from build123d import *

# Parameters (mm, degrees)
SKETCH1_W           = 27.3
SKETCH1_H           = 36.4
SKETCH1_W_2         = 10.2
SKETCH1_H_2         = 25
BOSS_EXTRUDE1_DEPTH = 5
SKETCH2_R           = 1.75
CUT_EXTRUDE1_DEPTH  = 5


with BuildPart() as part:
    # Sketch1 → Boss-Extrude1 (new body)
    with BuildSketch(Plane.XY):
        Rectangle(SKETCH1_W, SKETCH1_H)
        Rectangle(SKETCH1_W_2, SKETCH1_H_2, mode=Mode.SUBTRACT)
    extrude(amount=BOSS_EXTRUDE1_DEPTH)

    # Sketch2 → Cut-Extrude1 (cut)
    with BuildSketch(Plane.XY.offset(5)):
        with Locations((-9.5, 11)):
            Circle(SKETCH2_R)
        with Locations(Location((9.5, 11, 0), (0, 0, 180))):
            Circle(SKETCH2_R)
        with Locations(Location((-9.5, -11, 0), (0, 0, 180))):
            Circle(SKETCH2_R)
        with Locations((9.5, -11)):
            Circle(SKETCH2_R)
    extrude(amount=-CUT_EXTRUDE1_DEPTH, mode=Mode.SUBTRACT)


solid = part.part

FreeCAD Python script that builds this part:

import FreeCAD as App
import Part
import Sketcher
from FreeCAD import Vector

doc = App.newDocument("Part")
body = doc.addObject("PartDesign::Body", "Body")

# Sketch on XY plane
sketch1 = doc.addObject("Sketcher::SketchObject", "Sketch")
body.addObject(sketch1)
sketch1.AttachmentSupport = (doc.XY_Plane, [""])
sketch1.MapMode = "FlatFace"
sketch1.addGeometry([
    Part.LineSegment(Vector(-14, 18, 0), Vector(-14, -18, 0)),  # 0
    Part.LineSegment(Vector(-14, -18, 0), Vector(14, -18, 0)),  # 1
    Part.LineSegment(Vector(14, -18, 0), Vector(14, 18, 0)),  # 2
    Part.LineSegment(Vector(14, 18, 0), Vector(-14, 18, 0)),  # 3
    Part.LineSegment(Vector(5, -12, 0), Vector(-5, -12, 0)),  # 4
    Part.LineSegment(Vector(-5, -12, 0), Vector(-5, 12, 0)),  # 5
    Part.LineSegment(Vector(-5, 12, 0), Vector(5, 12, 0)),  # 6
    Part.LineSegment(Vector(5, 12, 0), Vector(5, -12, 0)),  # 7
], False)
sketch1.addConstraint([
    Sketcher.Constraint("Coincident", 0, 2, 1, 1),
    Sketcher.Constraint("Coincident", 1, 2, 2, 1),
    Sketcher.Constraint("Coincident", 2, 2, 3, 1),
    Sketcher.Constraint("Coincident", 3, 2, 0, 1),
    Sketcher.Constraint("Coincident", 4, 2, 5, 1),
    Sketcher.Constraint("Coincident", 5, 2, 6, 1),
    Sketcher.Constraint("Coincident", 6, 2, 7, 1),
    Sketcher.Constraint("Coincident", 7, 2, 4, 1),
    Sketcher.Constraint("Vertical", 0),
    Sketcher.Constraint("Horizontal", 1),
    Sketcher.Constraint("Vertical", 2),
    Sketcher.Constraint("Horizontal", 3),
    Sketcher.Constraint("Horizontal", 4),
    Sketcher.Constraint("Vertical", 5),
    Sketcher.Constraint("Horizontal", 6),
    Sketcher.Constraint("Vertical", 7),
    Sketcher.Constraint("Symmetric", 0, 2, 2, 2, -1, 1),
    Sketcher.Constraint("Symmetric", 4, 2, 6, 2, -1, 1),
    Sketcher.Constraint("DistanceY", 5, 1, 5, 2, 25.0),
    Sketcher.Constraint("DistanceX", 1, 1, 1, 2, 27.3),
    Sketcher.Constraint("DistanceX", 4, 2, 4, 1, 10.2),
    Sketcher.Constraint("DistanceY", 0, 2, 0, 1, 36.4),
])
pad1 = doc.addObject("PartDesign::Pad", "Pad")
body.addObject(pad1)
pad1.Profile = sketch1
pad1.Length = 5

# Sketch on XY plane
sketch2 = doc.addObject("Sketcher::SketchObject", "Sketch001")
body.addObject(sketch2)
sketch2.AttachmentSupport = (doc.XY_Plane, [""])
sketch2.MapMode = "FlatFace"
sketch2.AttachmentOffset = App.Placement(Vector(0, 0, 5), App.Rotation())
sketch2.addGeometry([
    Part.Circle(Vector(-9.5, 11, 0), Vector(0, 0, 1), 1.8),
    Part.Circle(Vector(9.5, 11, 0), Vector(0, 0, 1), 1.8),
    Part.Circle(Vector(-9.5, -11, 0), Vector(0, 0, 1), 1.8),
    Part.Circle(Vector(9.5, -11, 0), Vector(0, 0, 1), 1.8),
], False)
sketch2.addConstraint([
    Sketcher.Constraint("Equal", 0, 1),
    Sketcher.Constraint("Equal", 1, 2),
    Sketcher.Constraint("Equal", 2, 3),
    Sketcher.Constraint("Symmetric", 1, 3, 2, 3, -1, 1),
    Sketcher.Constraint("Symmetric", 0, 3, 3, 3, -1, 1),
    Sketcher.Constraint("Symmetric", 0, 3, 1, 3, -2),
    Sketcher.Constraint("Diameter", 0, 3.5),
    Sketcher.Constraint("DistanceY", -1, 1, 0, 3, 11.0),
    Sketcher.Constraint("DistanceX", 0, 3, 1, 3, 19.0),
])
pocket1 = doc.addObject("PartDesign::Pocket", "Pocket")
body.addObject(pocket1)
pocket1.Profile = sketch2
pocket1.Length = 5

doc.recompute()
